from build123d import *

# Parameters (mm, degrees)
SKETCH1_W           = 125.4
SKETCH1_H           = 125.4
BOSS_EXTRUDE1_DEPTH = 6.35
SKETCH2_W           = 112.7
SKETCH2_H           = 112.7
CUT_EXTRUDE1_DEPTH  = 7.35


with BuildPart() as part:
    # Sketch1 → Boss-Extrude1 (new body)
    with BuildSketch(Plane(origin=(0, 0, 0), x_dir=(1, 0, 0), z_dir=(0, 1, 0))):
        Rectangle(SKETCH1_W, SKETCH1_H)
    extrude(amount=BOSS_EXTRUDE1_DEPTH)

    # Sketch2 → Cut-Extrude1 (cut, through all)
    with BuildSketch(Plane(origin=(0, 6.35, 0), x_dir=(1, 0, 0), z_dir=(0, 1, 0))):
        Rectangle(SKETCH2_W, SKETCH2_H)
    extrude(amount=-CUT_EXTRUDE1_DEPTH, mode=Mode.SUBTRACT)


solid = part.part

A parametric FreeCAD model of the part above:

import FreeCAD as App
import Part
import Sketcher

V = App.Vector
Q = App.Units.Quantity


def add_polygon(sketch, points):
    """Adds a closed chain of lines whose ends are joined by coincident constraints."""
    first, n = sketch.GeometryCount, len(points)
    for a, b in zip(points, points[1:] + points[:1]):
        sketch.addGeometry(Part.LineSegment(App.Vector(*a, 0), App.Vector(*b, 0)), False)
    for i in range(n):
        sketch.addConstraint(Sketcher.Constraint("Coincident", first + i, 2, first + (i + 1) % n, 1))

doc = App.newDocument("Part")
params = doc.addObject("Spreadsheet::Sheet", "Params")
for row, (alias, value) in enumerate([
    ("sketch1_width", "125.4 mm"),
    ("pad1_length", "6.35 mm"),
    ("sketch2_width", "112.7 mm"),
], start=1):
    params.set(f"A{row}", alias)
    params.set(f"B{row}", "=" + value)
    params.setAlias(f"B{row}", alias)

body = doc.addObject("PartDesign::Body", "Body")

# Sketch on XZ plane
sketch1 = doc.addObject("Sketcher::SketchObject", "Sketch")
body.addObject(sketch1)
sketch1.AttachmentSupport = (doc.XZ_Plane, [""])
sketch1.MapMode = "FlatFace"
add_polygon(sketch1, [(-62.7, -62.7), (-62.7, 62.7), (62.7, 62.7), (62.7, -62.7)])  # lines 0-3
sketch1.addConstraint([
    Sketcher.Constraint("Vertical", 0),
    Sketcher.Constraint("Horizontal", 1),
    Sketcher.Constraint("Vertical", 2),
    Sketcher.Constraint("Horizontal", 3),
    Sketcher.Constraint("Symmetric", 0, 2, 2, 2, -1, 1),
    Sketcher.Constraint("Equal", 3, 0),
    Sketcher.Constraint("DistanceX", 1, 1, 1, 2, Q("125.4 mm")),
])
sketch1.setExpression("Constraints[10]", "Params.sketch1_width")
pad1 = doc.addObject("PartDesign::Pad", "Pad")
body.addObject(pad1)
pad1.Profile = sketch1
pad1.setExpression("Length", "Params.pad1_length")
pad1.Reversed = True

# Sketch on XZ plane
sketch2 = doc.addObject("Sketcher::SketchObject", "Sketch001")
body.addObject(sketch2)
sketch2.AttachmentSupport = (doc.XZ_Plane, [""])
sketch2.MapMode = "FlatFace"
sketch2.AttachmentOffset = App.Placement(V(0, 0, -6.35), App.Rotation())
add_polygon(sketch2, [(-56.35, -56.35), (-56.35, 56.35), (56.35, 56.35), (56.35, -56.35)])  # lines 0-3
sketch2.addConstraint([
    Sketcher.Constraint("Vertical", 0),
    Sketcher.Constraint("Horizontal", 1),
    Sketcher.Constraint("Vertical", 2),
    Sketcher.Constraint("Horizontal", 3),
    Sketcher.Constraint("Symmetric", 0, 2, 2, 2, -1, 1),
    Sketcher.Constraint("Equal", 3, 0),
    Sketcher.Constraint("DistanceX", 1, 1, 1, 2, Q("112.7 mm")),
])
sketch2.setExpression("Constraints[10]", "Params.sketch2_width")
pocket1 = doc.addObject("PartDesign::Pocket", "Pocket")
body.addObject(pocket1)
pocket1.Profile = sketch2
pocket1.Type = "ThroughAll"
pocket1.Reversed = True

doc.recompute()
